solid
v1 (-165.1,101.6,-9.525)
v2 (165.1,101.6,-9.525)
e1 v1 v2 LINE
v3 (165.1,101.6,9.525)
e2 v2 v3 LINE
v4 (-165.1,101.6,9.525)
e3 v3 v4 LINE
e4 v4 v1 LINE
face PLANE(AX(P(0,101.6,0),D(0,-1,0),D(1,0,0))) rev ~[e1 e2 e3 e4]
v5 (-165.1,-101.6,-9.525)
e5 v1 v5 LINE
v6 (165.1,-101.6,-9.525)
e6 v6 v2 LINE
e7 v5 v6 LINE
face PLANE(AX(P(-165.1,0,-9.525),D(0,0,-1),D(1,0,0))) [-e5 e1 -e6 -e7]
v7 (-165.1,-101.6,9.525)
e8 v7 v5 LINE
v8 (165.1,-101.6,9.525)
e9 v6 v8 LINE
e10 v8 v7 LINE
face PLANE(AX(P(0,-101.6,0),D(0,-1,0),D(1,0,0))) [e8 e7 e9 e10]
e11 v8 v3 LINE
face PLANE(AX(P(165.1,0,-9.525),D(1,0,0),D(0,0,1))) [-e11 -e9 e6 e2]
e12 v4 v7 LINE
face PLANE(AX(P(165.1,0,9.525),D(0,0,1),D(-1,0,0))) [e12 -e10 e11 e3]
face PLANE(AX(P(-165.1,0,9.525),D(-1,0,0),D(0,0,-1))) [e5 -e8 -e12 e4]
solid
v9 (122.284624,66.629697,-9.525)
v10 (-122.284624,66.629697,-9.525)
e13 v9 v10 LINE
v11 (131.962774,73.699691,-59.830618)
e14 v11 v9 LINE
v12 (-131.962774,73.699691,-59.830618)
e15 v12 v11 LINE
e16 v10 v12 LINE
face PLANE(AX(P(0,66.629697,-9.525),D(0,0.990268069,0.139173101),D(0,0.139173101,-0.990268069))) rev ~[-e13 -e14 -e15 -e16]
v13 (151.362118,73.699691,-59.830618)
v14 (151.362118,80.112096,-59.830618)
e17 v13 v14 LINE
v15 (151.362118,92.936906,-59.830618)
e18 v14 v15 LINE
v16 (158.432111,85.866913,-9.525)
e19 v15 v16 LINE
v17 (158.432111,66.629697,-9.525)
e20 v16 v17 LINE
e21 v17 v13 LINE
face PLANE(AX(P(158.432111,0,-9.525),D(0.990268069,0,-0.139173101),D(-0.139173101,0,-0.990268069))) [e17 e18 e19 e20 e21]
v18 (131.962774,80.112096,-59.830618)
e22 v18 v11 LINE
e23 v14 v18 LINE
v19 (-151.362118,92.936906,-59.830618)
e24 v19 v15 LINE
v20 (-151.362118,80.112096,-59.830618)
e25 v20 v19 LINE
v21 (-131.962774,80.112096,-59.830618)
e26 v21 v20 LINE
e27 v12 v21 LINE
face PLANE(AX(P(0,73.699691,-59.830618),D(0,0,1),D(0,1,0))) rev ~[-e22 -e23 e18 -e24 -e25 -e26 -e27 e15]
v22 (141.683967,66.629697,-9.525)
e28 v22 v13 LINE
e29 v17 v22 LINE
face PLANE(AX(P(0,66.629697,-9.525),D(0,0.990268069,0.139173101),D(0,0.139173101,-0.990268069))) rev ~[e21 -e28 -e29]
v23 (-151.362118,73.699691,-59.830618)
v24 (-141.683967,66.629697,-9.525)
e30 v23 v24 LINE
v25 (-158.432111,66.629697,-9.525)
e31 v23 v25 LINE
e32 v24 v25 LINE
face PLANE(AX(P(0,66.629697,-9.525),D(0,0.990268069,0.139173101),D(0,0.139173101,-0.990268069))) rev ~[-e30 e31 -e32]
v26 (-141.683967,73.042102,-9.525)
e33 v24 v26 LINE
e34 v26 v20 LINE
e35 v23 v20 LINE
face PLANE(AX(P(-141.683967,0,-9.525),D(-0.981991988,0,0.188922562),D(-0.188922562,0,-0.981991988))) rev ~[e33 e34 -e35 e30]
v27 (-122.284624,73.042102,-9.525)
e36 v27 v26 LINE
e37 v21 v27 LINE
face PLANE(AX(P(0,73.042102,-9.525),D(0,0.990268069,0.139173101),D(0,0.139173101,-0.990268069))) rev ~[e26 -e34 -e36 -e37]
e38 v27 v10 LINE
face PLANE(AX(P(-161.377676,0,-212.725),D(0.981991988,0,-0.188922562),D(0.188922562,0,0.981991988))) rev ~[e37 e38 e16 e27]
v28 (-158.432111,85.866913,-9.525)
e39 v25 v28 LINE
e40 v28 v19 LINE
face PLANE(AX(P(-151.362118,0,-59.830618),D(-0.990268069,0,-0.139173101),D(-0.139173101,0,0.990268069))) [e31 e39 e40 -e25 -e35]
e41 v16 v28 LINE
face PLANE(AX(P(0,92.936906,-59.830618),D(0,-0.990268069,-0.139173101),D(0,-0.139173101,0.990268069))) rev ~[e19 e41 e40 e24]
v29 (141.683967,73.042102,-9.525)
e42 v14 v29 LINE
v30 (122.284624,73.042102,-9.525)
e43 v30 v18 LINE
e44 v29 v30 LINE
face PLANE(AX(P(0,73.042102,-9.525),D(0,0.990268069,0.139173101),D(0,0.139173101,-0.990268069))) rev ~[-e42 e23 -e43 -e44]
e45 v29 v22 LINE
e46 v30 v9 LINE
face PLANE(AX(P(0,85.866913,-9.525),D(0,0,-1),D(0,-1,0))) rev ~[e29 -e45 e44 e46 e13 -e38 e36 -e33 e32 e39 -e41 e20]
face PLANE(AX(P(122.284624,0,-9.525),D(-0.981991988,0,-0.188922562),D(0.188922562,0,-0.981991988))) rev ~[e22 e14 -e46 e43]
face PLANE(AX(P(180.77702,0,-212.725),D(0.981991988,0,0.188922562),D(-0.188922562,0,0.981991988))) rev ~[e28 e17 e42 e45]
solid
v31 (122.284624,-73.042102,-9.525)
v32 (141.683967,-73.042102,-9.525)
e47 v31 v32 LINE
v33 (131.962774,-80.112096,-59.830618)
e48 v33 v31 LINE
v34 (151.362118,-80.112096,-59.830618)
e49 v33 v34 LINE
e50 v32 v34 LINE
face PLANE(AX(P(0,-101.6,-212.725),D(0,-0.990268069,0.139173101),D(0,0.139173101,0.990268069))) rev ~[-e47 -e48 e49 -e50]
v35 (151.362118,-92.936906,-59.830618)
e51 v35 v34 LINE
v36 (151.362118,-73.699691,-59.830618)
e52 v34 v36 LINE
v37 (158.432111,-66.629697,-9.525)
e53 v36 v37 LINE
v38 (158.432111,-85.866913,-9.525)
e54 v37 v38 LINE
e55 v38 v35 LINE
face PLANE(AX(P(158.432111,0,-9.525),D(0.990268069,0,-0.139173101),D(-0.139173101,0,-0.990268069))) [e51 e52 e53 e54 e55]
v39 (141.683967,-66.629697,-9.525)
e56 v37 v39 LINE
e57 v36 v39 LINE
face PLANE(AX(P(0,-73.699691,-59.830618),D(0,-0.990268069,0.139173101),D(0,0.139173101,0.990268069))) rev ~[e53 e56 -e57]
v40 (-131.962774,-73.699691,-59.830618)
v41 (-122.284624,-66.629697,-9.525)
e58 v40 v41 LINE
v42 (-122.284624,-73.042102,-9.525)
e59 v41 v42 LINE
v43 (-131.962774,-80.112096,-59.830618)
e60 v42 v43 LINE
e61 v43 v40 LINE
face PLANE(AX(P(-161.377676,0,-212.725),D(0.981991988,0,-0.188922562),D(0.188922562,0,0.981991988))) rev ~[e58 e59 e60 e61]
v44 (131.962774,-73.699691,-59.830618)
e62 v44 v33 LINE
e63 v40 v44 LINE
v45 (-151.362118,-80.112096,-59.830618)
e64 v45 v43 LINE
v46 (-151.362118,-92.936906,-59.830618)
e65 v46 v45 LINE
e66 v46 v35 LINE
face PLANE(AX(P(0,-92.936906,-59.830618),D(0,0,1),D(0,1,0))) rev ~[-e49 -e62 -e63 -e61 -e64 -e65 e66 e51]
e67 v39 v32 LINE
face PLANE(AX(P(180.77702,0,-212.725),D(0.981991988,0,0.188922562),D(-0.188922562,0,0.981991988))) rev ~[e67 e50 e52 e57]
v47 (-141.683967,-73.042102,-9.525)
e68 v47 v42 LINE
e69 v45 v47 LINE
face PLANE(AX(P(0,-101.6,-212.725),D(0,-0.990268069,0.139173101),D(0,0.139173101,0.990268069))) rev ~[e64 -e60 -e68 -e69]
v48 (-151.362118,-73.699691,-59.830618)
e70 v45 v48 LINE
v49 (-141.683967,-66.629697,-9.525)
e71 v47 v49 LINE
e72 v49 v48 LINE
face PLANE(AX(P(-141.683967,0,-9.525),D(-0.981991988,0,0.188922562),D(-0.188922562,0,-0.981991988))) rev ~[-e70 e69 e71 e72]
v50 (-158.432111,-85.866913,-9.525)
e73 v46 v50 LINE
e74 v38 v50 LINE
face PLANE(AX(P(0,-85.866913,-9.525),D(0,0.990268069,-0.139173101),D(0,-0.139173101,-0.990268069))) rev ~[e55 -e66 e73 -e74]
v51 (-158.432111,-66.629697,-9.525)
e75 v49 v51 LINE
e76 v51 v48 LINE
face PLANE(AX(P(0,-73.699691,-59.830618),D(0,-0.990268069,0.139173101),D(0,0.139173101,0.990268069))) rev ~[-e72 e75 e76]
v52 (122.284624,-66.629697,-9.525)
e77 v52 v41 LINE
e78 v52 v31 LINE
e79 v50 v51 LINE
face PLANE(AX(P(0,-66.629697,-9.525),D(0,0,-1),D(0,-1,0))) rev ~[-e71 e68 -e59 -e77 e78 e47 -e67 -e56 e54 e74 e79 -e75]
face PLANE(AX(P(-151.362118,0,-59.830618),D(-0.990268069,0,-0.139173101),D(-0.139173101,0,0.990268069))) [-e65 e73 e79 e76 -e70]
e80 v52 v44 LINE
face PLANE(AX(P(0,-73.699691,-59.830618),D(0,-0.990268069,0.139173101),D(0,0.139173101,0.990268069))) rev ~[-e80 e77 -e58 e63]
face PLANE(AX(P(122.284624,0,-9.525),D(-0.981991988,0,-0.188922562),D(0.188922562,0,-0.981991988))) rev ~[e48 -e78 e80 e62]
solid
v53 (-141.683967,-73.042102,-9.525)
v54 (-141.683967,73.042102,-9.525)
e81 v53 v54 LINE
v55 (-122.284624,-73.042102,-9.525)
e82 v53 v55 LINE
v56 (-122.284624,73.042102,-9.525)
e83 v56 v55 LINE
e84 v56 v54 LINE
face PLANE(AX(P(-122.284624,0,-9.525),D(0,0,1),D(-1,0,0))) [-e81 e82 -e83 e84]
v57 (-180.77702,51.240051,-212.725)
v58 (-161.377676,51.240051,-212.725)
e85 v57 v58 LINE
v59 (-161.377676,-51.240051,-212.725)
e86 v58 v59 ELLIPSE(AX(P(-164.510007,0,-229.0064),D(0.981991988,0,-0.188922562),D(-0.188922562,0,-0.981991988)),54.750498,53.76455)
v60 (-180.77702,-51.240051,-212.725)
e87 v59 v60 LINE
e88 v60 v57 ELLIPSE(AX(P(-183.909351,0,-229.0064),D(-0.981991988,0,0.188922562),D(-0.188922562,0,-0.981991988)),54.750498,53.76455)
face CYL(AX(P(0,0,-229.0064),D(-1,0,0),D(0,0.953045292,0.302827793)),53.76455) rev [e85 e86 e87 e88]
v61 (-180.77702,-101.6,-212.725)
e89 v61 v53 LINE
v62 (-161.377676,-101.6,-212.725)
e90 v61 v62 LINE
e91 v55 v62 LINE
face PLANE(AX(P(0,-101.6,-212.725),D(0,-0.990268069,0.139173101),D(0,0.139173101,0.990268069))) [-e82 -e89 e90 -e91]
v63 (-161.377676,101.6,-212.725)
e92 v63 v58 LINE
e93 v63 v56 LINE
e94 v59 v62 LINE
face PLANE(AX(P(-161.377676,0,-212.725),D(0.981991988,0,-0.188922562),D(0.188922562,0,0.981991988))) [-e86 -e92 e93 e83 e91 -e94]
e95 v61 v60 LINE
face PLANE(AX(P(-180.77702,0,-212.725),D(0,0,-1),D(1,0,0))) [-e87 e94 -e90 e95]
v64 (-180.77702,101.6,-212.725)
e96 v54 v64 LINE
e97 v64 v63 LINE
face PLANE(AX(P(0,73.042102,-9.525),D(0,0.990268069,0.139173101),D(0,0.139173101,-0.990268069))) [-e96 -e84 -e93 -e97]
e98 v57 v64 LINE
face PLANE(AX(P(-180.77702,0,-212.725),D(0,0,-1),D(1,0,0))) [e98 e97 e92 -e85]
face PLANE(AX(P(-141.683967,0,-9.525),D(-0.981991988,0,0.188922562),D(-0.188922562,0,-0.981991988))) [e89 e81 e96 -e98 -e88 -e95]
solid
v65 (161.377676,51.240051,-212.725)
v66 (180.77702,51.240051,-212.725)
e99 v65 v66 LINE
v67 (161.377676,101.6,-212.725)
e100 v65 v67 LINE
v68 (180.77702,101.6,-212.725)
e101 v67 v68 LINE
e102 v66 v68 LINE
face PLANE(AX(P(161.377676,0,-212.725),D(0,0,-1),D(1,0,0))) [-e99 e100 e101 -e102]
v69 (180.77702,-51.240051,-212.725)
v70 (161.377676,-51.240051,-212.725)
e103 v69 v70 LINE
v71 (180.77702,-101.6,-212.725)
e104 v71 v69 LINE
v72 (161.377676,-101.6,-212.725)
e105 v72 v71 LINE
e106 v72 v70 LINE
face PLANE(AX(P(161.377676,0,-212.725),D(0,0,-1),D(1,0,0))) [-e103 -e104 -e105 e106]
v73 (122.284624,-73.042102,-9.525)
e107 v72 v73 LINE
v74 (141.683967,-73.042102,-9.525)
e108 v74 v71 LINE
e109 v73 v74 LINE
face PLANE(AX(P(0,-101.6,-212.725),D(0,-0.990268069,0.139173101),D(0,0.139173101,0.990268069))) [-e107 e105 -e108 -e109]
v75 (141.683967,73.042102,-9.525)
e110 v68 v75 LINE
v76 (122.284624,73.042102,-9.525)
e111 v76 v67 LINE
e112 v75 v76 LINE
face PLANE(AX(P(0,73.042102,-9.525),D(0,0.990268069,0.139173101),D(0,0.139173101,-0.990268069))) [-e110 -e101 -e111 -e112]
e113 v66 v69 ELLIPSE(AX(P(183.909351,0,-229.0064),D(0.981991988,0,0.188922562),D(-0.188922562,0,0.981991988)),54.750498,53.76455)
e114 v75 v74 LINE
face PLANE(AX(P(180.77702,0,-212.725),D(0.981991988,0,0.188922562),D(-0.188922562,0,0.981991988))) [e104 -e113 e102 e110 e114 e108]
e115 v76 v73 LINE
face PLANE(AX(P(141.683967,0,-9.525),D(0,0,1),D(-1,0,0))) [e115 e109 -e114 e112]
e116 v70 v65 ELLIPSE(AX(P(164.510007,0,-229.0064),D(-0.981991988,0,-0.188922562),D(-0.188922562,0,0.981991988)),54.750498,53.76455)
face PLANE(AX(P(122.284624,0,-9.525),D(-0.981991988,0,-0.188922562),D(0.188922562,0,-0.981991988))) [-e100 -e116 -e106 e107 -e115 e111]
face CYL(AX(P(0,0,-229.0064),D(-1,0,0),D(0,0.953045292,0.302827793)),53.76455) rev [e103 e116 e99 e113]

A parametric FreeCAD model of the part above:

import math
import FreeCAD as App
import Part
import Sketcher

V = App.Vector
Q = App.Units.Quantity


def add_polygon(sketch, points):
    """Adds a closed chain of lines whose ends are joined by coincident constraints."""
    first, n = sketch.GeometryCount, len(points)
    for a, b in zip(points, points[1:] + points[:1]):
        sketch.addGeometry(Part.LineSegment(App.Vector(*a, 0), App.Vector(*b, 0)), False)
    for i in range(n):
        sketch.addConstraint(Sketcher.Constraint("Coincident", first + i, 2, first + (i + 1) % n, 1))

doc = App.newDocument("Part")
params = doc.addObject("Spreadsheet::Sheet", "Params")
for row, (alias, value) in enumerate([
    ("sketch1_width", "13 in"),
    ("sketch1_height", "0.75 in"),
    ("pad1_length", "8 in"),
    ("pad2_length", "4 in"),
    ("pad2_length2", "4 in"),
    ("pad3_length", "4 in"),
    ("pad3_length2", "4 in"),
    ("sketch4_height", "8 in"),
    ("pad4_length", "180.77802 mm"),
    ("pad4_length2", "180.77802 mm"),
    ("sketch5_length", "2 in"),
    ("pad5_length", "6.5 in"),
    ("pad5_length2", "6.5 in"),
    ("sketch6_length", "2 in"),
    ("pad6_length", "6.5 in"),
    ("pad6_length2", "6.5 in"),
    ("sketch7_length", "2 in"),
    ("pad7_length", "101.601 mm"),
    ("pad7_length2", "101.601 mm"),
], start=1):
    params.set(f"A{row}", alias)
    params.set(f"B{row}", "=" + value)
    params.setAlias(f"B{row}", alias)

body = doc.addObject("PartDesign::Body", "Body")

sketch1 = body.newObject("Sketcher::SketchObject", "Sketch")
sketch1.AttachmentSupport = (doc.getObject("XZ_Plane"), [""])
sketch1.MapMode = "FlatFace"
add_polygon(sketch1, [(165, 10), (-165, 10), (-165, -10), (165, -10)])
sketch1.addConstraint([
    Sketcher.Constraint("Horizontal", 0),
    Sketcher.Constraint("Vertical", 1),
    Sketcher.Constraint("Horizontal", 2),
    Sketcher.Constraint("Vertical", 3),
    Sketcher.Constraint("Symmetric", 0, 2, 2, 2, -1, 1),
    Sketcher.Constraint("DistanceX", 0, 2, 0, 1, Q("13 in")),
    Sketcher.Constraint("DistanceY", 1, 2, 1, 1, Q("0.75 in")),
])
sketch1.setExpression("Constraints[9]", "Params.sketch1_width")
sketch1.setExpression("Constraints[10]", "Params.sketch1_height")
pad1 = body.newObject("PartDesign::Pad", "Pad")
pad1.Profile = sketch1
pad1.setExpression("Length", "Params.pad1_length")
pad1.Midplane = True
body2 = doc.addObject("PartDesign::Body", "Body001")

sketch2 = body2.newObject("Sketcher::SketchObject", "Sketch001")
sketch2.AttachmentSupport = (doc.getObject("XZ_Plane001"), [""])
sketch2.MapMode = "FlatFace"
add_polygon(sketch2, [(-181, -213), (-161, -213), (-122, -10), (-142, -10)])
sketch2.addConstraint([
    Sketcher.Constraint("Horizontal", 0),
    Sketcher.Constraint("Horizontal", 2),
    Sketcher.Constraint("Parallel", 1, 3),
    Sketcher.Constraint("DistanceY", 0, 2, 1, 2, Q("8 in")),
    Sketcher.Constraint("DistanceY", 0, 2, -1, 1, Q("8.375 in")),
    Sketcher.Constraint("Distance", 1, 206.926332),
    Sketcher.Constraint("DistanceX", 0, 1, 0, 2, 19.399344),
    Sketcher.Constraint("DistanceX", 3, 2, -1, 1, 180.77702),
])
pad2 = body2.newObject("PartDesign::Pad", "Pad001")
pad2.Profile = sketch2
pad2.Type = "TwoLengths"
pad2.setExpression("Length", "Params.pad2_length")
pad2.setExpression("Length2", "Params.pad2_length2")
body3 = doc.addObject("PartDesign::Body", "Body002")

sketch3 = body3.newObject("Sketcher::SketchObject", "Sketch002")
sketch3.AttachmentSupport = (doc.getObject("XZ_Plane002"), [""])
sketch3.MapMode = "FlatFace"
add_polygon(sketch3, [(181, -213), (142, -10), (122, -10), (161, -213)])
sketch3.addConstraint([
    Sketcher.Constraint("Horizontal", 1),
    Sketcher.Constraint("Horizontal", 3),
    Sketcher.Constraint("Parallel", 0, 2),
    Sketcher.Constraint("DistanceY", 2, 2, 0, 2, Q("8 in")),
    Sketcher.Constraint("DistanceY", 0, 2, -1, 1, Q("0.375 in")),
    Sketcher.Constraint("Distance", 0, 206.926332),
    Sketcher.Constraint("DistanceX", 1, 2, 1, 1, 19.399344),
    Sketcher.Constraint("DistanceX", -1, 1, 3, 2, 180.77702),
])
pad3 = body3.newObject("PartDesign::Pad", "Pad002")
pad3.Profile = sketch3
pad3.Type = "TwoLengths"
pad3.setExpression("Length", "Params.pad3_length")
pad3.setExpression("Length2", "Params.pad3_length2")
body4 = doc.addObject("PartDesign::Body", "Body003")
body4.AllowCompound = True

sketch4 = body4.newObject("Sketcher::SketchObject", "Sketch003")
sketch4.AttachmentSupport = (doc.getObject("YZ_Plane003"), [""])
sketch4.MapMode = "FlatFace"
add_polygon(sketch4, [(-102, -213), (-73, -10), (-102, -10)])
sketch4.addGeometry(Part.LineSegment(V(-51, -213, 0), V(51, -213, 0)), False)
sketch4.addGeometry(Part.ArcOfCircle(Part.Circle(V(0, -229, 0), V(0, 0, 1), 54), math.radians(18), math.radians(162)), False)
add_polygon(sketch4, [(102, -213), (102, -10), (73, -10)])
sketch4.addConstraint([
    Sketcher.Constraint("Coincident", 3, 1, 4, 2),
    Sketcher.Constraint("Coincident", 4, 1, 3, 2),
    Sketcher.Constraint("Horizontal", 1),
    Sketcher.Constraint("Vertical", 2),
    Sketcher.Constraint("Horizontal", 3),
    Sketcher.Constraint("Vertical", 5),
    Sketcher.Constraint("Horizontal", 6),
    Sketcher.Constraint("Symmetric", 1, 2, 5, 2, -2),
    Sketcher.Constraint("PointOnObject", 4, 3, -2),
    Sketcher.Constraint("Horizontal", 2, 2, 3, 1),
    Sketcher.Constraint("Horizontal", 4, 1, 7, 2),
    Sketcher.Constraint("Equal", 1, 6),
    Sketcher.Constraint("DistanceY", 2, 2, 2, 1, Q("8 in")),
    Sketcher.Constraint("DistanceX", 1, 2, -1, 1, Q("4 in")),
    Sketcher.Constraint("Angle", 0, Q("82 deg")),
    Sketcher.Constraint("DistanceY", 4, 3, -1, 1, Q("9.016 in")),
    Sketcher.Constraint("DistanceY", 0, 2, -1, 1, Q("0.375 in")),
    Sketcher.Constraint("Radius", 4, 53.76455),
])
sketch4.setExpression("Constraints[18]", "Params.sketch4_height")
pad4 = body4.newObject("PartDesign::Pad", "Pad003")
pad4.Profile = sketch4
pad4.Type = "TwoLengths"
pad4.setExpression("Length", "Params.pad4_length")
pad4.setExpression("Length2", "Params.pad4_length2")
pad4.Reversed = True
doc.recompute()

body5 = doc.addObject("PartDesign::Body", "Body004")
body5.BaseFeature = body4
boolean = body2.newObject("PartDesign::Boolean", "Boolean")
boolean.Type = "Cut"
boolean.addObjects([body5])
doc.recompute()

boolean2 = body3.newObject("PartDesign::Boolean", "Boolean001")
boolean2.Type = "Cut"
boolean2.addObjects([body4])
body6 = doc.addObject("PartDesign::Body", "Body005")

sketch5 = body6.newObject("Sketcher::SketchObject", "Sketch004")
sketch5.AttachmentSupport = (doc.getObject("YZ_Plane005"), [""])
sketch5.MapMode = "FlatFace"
add_polygon(sketch5, [(-86, -10), (-93, -60), (-74, -60), (-67, -10)])
sketch5.addConstraint([
    Sketcher.Constraint("Horizontal", 1),
    Sketcher.Constraint("Horizontal", 3),
    Sketcher.Constraint("Parallel", 0, 2),
    Sketcher.Constraint("Distance", 0, Q("2 in")),
    Sketcher.Constraint("Angle", 0, Q("-98 deg")),
    Sketcher.Constraint("DistanceY", 2, 2, -1, 1, Q("0.375 in")),
    Sketcher.Constraint("DistanceX", 1, 1, 1, 2, 19.237215),
    Sketcher.Constraint("DistanceX", 1, 2, -1, 1, 73.699691),
])
sketch5.setExpression("Constraints[7]", "Params.sketch5_length")
pad5 = body6.newObject("PartDesign::Pad", "Pad004")
pad5.Profile = sketch5
pad5.Type = "TwoLengths"
pad5.setExpression("Length", "Params.pad5_length")
pad5.setExpression("Length2", "Params.pad5_length2")
pad5.Reversed = True
body7 = doc.addObject("PartDesign::Body", "Body006")

sketch6 = body7.newObject("Sketcher::SketchObject", "Sketch005")
sketch6.AttachmentSupport = (doc.getObject("YZ_Plane006"), [""])
sketch6.MapMode = "FlatFace"
add_polygon(sketch6, [(67, -10), (74, -60), (93, -60), (86, -10)])
sketch6.addConstraint([
    Sketcher.Constraint("Horizontal", 1),
    Sketcher.Constraint("Horizontal", 3),
    Sketcher.Constraint("Parallel", 0, 2),
    Sketcher.Constraint("Distance", 0, Q("2 in")),
    Sketcher.Constraint("Angle", 0, Q("-82 deg")),
    Sketcher.Constraint("DistanceY", 2, 2, -1, 1, Q("0.375 in")),
    Sketcher.Constraint("DistanceX", 1, 1, 1, 2, 19.237215),
    Sketcher.Constraint("DistanceX", -1, 1, 0, 2, 73.699691),
])
sketch6.setExpression("Constraints[7]", "Params.sketch6_length")
pad6 = body7.newObject("PartDesign::Pad", "Pad005")
pad6.Profile = sketch6
pad6.Type = "TwoLengths"
pad6.setExpression("Length", "Params.pad6_length")
pad6.setExpression("Length2", "Params.pad6_length2")
pad6.Reversed = True
body8 = doc.addObject("PartDesign::Body", "Body007")
body8.AllowCompound = True

sketch7 = body8.newObject("Sketcher::SketchObject", "Sketch006")
sketch7.AttachmentSupport = (doc.getObject("XZ_Plane007"), [""])
sketch7.MapMode = "FlatFace"
add_polygon(sketch7, [(-158, -10), (-165, -10), (-165, -60), (-151, -60)])
add_polygon(sketch7, [(165, -60), (165, -10), (158, -10), (151, -60)])
sketch7.addConstraint([
    Sketcher.Constraint("Horizontal", 0),
    Sketcher.Constraint("Vertical", 1),
    Sketcher.Constraint("Horizontal", 2),
    Sketcher.Constraint("Vertical", 4),
    Sketcher.Constraint("Horizontal", 5),
    Sketcher.Constraint("Horizontal", 7),
    Sketcher.Constraint("Symmetric", 0, 2, 4, 2, -2),
    Sketcher.Constraint("Symmetric", 2, 2, 6, 2, -2),
    Sketcher.Constraint("Equal", 0, 5),
    Sketcher.Constraint("Distance", 3, Q("2 in")),
    Sketcher.Constraint("Angle", 3, Q("98 deg")),
    Sketcher.Constraint("DistanceX", 0, 2, 4, 2, Q("13 in")),
    Sketcher.Constraint("DistanceY", 0, 2, -1, 1, Q("0.375 in")),
    Sketcher.Constraint("DistanceX", 0, 2, 0, 1, 6.667889),
])
sketch7.setExpression("Constraints[17]", "Params.sketch7_length")
pad7 = body8.newObject("PartDesign::Pad", "Pad006")
pad7.Profile = sketch7
pad7.Type = "TwoLengths"
pad7.setExpression("Length", "Params.pad7_length")
pad7.setExpression("Length2", "Params.pad7_length2")
pad7.Reversed = True
doc.recompute()

body9 = doc.addObject("PartDesign::Body", "Body008")
body9.BaseFeature = body8
boolean3 = body6.newObject("PartDesign::Boolean", "Boolean002")
boolean3.Type = "Cut"
boolean3.addObjects([body9])
doc.recompute()

body10 = doc.addObject("PartDesign::Body", "Body009")
body10.BaseFeature = body2
boolean4 = body6.newObject("PartDesign::Boolean", "Boolean003")
boolean4.Type = "Cut"
boolean4.addObjects([body10])
doc.recompute()

body11 = doc.addObject("PartDesign::Body", "Body010")
body11.BaseFeature = body3
boolean5 = body6.newObject("PartDesign::Boolean", "Boolean004")
boolean5.Type = "Cut"
boolean5.addObjects([body11])
doc.recompute()

boolean6 = body7.newObject("PartDesign::Boolean", "Boolean005")
boolean6.Type = "Cut"
boolean6.addObjects([body8])
doc.recompute()

body12 = doc.addObject("PartDesign::Body", "Body011")
body12.BaseFeature = body2
boolean7 = body7.newObject("PartDesign::Boolean", "Boolean006")
boolean7.Type = "Cut"
boolean7.addObjects([body12])
doc.recompute()

body13 = doc.addObject("PartDesign::Body", "Body012")
body13.BaseFeature = body3
boolean8 = body7.newObject("PartDesign::Boolean", "Boolean007")
boolean8.Type = "Cut"
boolean8.addObjects([body13])
doc.recompute()

doc.recompute()
